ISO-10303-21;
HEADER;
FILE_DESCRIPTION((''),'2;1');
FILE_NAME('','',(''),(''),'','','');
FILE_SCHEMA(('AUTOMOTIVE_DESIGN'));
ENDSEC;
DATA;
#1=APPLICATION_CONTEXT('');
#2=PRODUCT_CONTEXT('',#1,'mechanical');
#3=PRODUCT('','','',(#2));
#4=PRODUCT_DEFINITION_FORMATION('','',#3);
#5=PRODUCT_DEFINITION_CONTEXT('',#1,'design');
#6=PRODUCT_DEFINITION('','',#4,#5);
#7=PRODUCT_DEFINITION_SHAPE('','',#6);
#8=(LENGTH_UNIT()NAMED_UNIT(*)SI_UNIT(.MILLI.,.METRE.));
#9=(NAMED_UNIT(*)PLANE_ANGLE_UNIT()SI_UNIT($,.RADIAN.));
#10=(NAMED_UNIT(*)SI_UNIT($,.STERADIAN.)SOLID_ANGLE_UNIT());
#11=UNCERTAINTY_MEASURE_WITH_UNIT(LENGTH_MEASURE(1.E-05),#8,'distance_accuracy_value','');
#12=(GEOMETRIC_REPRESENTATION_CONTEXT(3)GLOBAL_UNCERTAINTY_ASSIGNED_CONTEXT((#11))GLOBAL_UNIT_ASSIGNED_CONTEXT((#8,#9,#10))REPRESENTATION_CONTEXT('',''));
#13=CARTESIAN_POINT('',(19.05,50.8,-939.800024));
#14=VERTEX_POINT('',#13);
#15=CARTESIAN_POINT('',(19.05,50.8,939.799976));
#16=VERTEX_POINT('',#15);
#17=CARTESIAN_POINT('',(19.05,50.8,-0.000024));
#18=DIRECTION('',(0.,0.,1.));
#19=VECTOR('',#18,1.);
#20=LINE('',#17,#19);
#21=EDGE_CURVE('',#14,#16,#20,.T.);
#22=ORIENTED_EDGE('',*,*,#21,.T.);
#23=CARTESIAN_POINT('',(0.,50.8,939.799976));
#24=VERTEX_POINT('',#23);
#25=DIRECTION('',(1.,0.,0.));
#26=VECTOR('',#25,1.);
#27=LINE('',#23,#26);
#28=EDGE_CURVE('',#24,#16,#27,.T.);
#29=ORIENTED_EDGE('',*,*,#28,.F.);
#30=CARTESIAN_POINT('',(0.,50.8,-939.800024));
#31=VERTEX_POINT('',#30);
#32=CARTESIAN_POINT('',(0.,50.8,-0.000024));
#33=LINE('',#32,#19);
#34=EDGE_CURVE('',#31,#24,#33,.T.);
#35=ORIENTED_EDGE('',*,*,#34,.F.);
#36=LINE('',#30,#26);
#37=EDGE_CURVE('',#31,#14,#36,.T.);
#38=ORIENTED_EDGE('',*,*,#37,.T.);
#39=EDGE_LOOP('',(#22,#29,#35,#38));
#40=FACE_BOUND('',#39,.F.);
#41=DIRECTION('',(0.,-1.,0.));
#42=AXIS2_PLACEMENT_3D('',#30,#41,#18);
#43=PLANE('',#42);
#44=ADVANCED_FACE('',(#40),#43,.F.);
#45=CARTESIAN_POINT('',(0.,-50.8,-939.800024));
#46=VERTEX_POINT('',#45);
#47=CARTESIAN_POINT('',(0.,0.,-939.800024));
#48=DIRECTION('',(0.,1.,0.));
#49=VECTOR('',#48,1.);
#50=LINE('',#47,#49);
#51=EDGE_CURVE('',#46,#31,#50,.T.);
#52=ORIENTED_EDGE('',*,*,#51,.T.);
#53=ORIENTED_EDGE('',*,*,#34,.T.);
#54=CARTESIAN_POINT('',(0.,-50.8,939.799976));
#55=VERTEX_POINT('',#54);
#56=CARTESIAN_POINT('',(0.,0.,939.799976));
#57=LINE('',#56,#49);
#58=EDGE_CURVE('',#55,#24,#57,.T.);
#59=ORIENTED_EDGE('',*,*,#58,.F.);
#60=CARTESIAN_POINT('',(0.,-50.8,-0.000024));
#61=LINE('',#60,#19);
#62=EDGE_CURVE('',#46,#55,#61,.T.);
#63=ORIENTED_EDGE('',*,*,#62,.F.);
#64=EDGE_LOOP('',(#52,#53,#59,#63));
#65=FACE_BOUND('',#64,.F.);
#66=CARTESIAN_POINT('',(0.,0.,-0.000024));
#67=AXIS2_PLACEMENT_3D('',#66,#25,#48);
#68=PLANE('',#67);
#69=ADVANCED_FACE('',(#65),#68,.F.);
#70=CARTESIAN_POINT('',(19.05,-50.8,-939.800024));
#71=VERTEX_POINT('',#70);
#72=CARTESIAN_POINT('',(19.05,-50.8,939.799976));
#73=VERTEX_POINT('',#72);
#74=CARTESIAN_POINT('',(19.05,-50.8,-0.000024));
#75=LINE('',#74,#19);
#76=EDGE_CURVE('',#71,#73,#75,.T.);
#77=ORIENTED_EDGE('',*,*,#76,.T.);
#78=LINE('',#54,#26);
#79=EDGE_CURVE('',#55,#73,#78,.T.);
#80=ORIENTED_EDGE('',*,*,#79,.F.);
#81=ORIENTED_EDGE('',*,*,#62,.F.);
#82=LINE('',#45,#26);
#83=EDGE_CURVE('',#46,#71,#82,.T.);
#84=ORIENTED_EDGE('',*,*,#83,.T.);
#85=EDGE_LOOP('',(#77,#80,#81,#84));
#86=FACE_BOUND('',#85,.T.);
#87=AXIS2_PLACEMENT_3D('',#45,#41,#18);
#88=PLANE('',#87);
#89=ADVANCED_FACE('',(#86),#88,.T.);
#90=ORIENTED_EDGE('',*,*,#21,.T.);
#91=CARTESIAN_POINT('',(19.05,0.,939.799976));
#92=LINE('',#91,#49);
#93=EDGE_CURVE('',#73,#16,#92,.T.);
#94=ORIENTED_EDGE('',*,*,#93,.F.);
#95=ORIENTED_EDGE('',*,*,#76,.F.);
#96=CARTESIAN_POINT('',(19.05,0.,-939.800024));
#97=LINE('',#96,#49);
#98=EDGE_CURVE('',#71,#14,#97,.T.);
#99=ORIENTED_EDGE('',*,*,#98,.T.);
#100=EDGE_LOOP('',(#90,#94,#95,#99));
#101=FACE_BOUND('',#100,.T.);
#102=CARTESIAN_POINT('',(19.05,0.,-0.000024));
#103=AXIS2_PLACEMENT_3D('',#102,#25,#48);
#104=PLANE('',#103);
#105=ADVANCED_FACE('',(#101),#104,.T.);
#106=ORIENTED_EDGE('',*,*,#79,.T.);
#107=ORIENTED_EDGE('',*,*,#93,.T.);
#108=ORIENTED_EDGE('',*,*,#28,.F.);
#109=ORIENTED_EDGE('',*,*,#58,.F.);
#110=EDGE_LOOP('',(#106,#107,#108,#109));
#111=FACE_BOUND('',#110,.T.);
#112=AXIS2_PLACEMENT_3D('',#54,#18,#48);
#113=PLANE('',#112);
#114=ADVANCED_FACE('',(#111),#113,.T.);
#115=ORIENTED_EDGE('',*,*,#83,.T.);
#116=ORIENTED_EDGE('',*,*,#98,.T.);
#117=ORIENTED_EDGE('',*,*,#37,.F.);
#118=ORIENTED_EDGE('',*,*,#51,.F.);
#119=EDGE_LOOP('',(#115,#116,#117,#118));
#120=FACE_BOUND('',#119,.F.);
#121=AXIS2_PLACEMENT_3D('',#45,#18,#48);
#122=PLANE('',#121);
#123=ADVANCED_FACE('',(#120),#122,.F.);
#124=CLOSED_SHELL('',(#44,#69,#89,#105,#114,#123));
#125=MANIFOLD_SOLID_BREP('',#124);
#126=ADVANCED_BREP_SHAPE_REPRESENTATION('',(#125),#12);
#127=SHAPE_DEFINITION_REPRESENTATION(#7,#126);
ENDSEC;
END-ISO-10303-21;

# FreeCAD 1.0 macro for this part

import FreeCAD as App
import Part
import Sketcher
Q = App.Units.Quantity


def add_polygon(sketch, points):
    """Adds a closed chain of lines whose ends are joined by coincident constraints."""
    first, n = sketch.GeometryCount, len(points)
    for a, b in zip(points, points[1:] + points[:1]):
        sketch.addGeometry(Part.LineSegment(App.Vector(*a, 0), App.Vector(*b, 0)), False)
    for i in range(n):
        sketch.addConstraint(Sketcher.Constraint("Coincident", first + i, 2, first + (i + 1) % n, 1))

doc = App.newDocument("Part")
body = doc.addObject("PartDesign::Body", "Body")

# Sketch on YZ plane
sketch1 = body.newObject("Sketcher::SketchObject", "Sketch")
sketch1.AttachmentSupport = (doc.getObject("YZ_Plane"), [""])
sketch1.MapMode = "FlatFace"
add_polygon(sketch1, [(-50.8, 939.799976), (-50.8, -939.800024), (50.8, -939.800024), (50.8, 939.799976)])  # lines 0-3
sketch1.addConstraint([
    Sketcher.Constraint("Vertical", 0),
    Sketcher.Constraint("Horizontal", 1),
    Sketcher.Constraint("Vertical", 2),
    Sketcher.Constraint("Horizontal", 3),
    Sketcher.Constraint("DistanceX", 1, 1, 1, 2, Q("4 in")),
    Sketcher.Constraint("DistanceY", 0, 2, 0, 1, Q("74 in")),
    Sketcher.Constraint("DistanceX", 0, 2, -1, 1, Q("2 in")),
    Sketcher.Constraint("DistanceY", 0, 2, -1, 1, 939.800024),
])
pad1 = body.newObject("PartDesign::Pad", "Pad")
pad1.Profile = sketch1
pad1.Length = Q("0.75 in")

doc.recompute()
